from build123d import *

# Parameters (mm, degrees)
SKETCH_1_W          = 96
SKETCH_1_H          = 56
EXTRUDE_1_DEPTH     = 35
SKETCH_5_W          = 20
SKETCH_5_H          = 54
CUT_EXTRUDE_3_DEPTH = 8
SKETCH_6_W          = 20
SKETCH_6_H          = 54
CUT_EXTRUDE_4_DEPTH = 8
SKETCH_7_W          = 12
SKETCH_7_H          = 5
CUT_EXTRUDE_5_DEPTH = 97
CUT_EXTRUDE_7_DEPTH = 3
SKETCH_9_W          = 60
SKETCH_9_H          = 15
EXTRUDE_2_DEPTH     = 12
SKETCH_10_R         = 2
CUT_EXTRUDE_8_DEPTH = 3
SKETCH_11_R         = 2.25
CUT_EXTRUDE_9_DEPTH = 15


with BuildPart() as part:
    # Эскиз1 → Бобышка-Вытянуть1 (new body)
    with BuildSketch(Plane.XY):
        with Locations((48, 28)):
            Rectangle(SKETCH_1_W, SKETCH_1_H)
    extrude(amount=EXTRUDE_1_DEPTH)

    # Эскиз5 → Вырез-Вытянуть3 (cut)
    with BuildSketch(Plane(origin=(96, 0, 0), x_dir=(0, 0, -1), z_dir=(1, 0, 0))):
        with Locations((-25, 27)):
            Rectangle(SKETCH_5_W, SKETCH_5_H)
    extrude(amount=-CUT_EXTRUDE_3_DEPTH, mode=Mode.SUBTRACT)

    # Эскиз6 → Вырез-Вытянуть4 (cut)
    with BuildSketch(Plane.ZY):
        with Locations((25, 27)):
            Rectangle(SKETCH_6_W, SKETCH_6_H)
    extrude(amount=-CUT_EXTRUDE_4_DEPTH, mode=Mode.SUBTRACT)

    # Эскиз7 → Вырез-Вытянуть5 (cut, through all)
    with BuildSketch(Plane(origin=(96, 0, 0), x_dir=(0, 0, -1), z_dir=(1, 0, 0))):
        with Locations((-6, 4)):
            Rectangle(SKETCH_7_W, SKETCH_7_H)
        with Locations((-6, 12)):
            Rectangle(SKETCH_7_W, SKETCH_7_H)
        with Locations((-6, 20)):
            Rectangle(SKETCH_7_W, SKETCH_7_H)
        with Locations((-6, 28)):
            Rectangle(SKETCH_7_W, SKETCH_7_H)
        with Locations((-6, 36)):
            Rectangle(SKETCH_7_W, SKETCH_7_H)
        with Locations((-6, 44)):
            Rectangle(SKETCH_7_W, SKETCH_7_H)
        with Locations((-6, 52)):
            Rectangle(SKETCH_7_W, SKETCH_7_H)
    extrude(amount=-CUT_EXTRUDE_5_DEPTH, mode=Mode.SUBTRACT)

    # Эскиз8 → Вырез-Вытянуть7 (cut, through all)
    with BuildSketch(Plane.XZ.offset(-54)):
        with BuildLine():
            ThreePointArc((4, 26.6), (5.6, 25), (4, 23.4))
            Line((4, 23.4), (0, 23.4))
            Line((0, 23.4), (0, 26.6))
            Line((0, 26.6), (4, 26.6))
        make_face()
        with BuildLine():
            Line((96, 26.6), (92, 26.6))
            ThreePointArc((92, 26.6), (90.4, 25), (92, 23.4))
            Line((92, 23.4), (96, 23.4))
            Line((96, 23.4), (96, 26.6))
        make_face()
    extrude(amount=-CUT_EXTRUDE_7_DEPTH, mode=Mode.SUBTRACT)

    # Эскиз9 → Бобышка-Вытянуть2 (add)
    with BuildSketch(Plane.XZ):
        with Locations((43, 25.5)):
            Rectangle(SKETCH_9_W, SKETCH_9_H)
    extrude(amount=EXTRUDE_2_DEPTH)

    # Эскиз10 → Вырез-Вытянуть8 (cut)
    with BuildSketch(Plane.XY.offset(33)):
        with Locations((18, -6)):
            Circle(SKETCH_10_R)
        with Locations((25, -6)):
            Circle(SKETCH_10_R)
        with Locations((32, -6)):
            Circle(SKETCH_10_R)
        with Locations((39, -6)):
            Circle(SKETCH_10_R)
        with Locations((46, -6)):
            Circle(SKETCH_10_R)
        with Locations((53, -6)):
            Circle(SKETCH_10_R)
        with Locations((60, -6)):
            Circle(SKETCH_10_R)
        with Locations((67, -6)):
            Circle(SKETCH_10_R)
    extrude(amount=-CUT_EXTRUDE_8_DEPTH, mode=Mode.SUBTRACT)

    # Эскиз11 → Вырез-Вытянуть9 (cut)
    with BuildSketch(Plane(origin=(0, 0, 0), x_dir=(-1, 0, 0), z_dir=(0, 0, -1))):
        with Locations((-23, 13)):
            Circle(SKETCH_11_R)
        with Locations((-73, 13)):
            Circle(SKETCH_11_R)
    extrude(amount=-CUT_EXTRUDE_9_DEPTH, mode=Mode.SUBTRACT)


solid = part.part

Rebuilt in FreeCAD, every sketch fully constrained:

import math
import FreeCAD as App
import Part
import Sketcher

V = App.Vector
Q = App.Units.Quantity


def add_polygon(sketch, points):
    """Adds a closed chain of lines whose ends are joined by coincident constraints."""
    first, n = sketch.GeometryCount, len(points)
    for a, b in zip(points, points[1:] + points[:1]):
        sketch.addGeometry(Part.LineSegment(App.Vector(*a, 0), App.Vector(*b, 0)), False)
    for i in range(n):
        sketch.addConstraint(Sketcher.Constraint("Coincident", first + i, 2, first + (i + 1) % n, 1))

doc = App.newDocument("Part")
body = doc.addObject("PartDesign::Body", "Body")

sketch1 = body.newObject("Sketcher::SketchObject", "Sketch")
sketch1.AttachmentSupport = (doc.getObject("XY_Plane"), [""])
sketch1.MapMode = "FlatFace"
add_polygon(sketch1, [(0, 56), (0, 0), (96, 0), (96, 56)])
sketch1.addConstraint([
    Sketcher.Constraint("Vertical", 0),
    Sketcher.Constraint("Horizontal", 1),
    Sketcher.Constraint("Vertical", 2),
    Sketcher.Constraint("Horizontal", 3),
    Sketcher.Constraint("Coincident", 0, 2, -1, 1),
    Sketcher.Constraint("DistanceX", 1, 1, 1, 2, Q("96 mm")),
    Sketcher.Constraint("DistanceY", 0, 2, 0, 1, Q("56 mm")),
])
pad1 = body.newObject("PartDesign::Pad", "Pad")
pad1.Profile = sketch1
pad1.Length = 35

sketch2 = body.newObject("Sketcher::SketchObject", "Sketch001")
sketch2.AttachmentSupport = (doc.getObject("YZ_Plane"), [""])
sketch2.MapMode = "FlatFace"
sketch2.AttachmentOffset = App.Placement(V(0, 0, 96), App.Rotation())
add_polygon(sketch2, [(54, 35), (0, 35), (0, 15), (54, 15)])
sketch2.addConstraint([
    Sketcher.Constraint("Horizontal", 0),
    Sketcher.Constraint("Vertical", 1),
    Sketcher.Constraint("Horizontal", 2),
    Sketcher.Constraint("Vertical", 3),
    Sketcher.Constraint("PointOnObject", 0, 2, -2),
    Sketcher.Constraint("DistanceX", 0, 2, 0, 1, Q("54 mm")),
    Sketcher.Constraint("DistanceY", 1, 2, 1, 1, Q("20 mm")),
    Sketcher.Constraint("DistanceY", -1, 1, 0, 2, Q("35 mm")),
])
pocket1 = body.newObject("PartDesign::Pocket", "Pocket")
pocket1.Profile = sketch2
pocket1.Length = 8

sketch3 = body.newObject("Sketcher::SketchObject", "Sketch002")
sketch3.AttachmentSupport = (doc.getObject("YZ_Plane"), [""])
sketch3.MapMode = "FlatFace"
add_polygon(sketch3, [(54, 15), (0, 15), (0, 35), (54, 35)])
sketch3.addConstraint([
    Sketcher.Constraint("Horizontal", 0),
    Sketcher.Constraint("Vertical", 1),
    Sketcher.Constraint("Horizontal", 2),
    Sketcher.Constraint("Vertical", 3),
    Sketcher.Constraint("PointOnObject", 0, 2, -2),
    Sketcher.Constraint("DistanceX", 0, 2, 0, 1, Q("54 mm")),
    Sketcher.Constraint("DistanceY", 1, 1, 1, 2, Q("20 mm")),
    Sketcher.Constraint("DistanceY", -1, 1, 0, 2, Q("15 mm")),
])
pocket2 = body.newObject("PartDesign::Pocket", "Pocket001")
pocket2.Profile = sketch3
pocket2.Length = 8
pocket2.Reversed = True

sketch4 = body.newObject("Sketcher::SketchObject", "Sketch003")
sketch4.AttachmentSupport = (doc.getObject("YZ_Plane"), [""])
sketch4.MapMode = "FlatFace"
sketch4.AttachmentOffset = App.Placement(V(0, 0, 96), App.Rotation())
add_polygon(sketch4, [(6, 12), (2, 12), (2, 0), (6, 0)])
add_polygon(sketch4, [(14, 12), (10, 12), (10, 0), (14, 0)])
add_polygon(sketch4, [(22, 12), (18, 12), (18, 0), (22, 0)])
add_polygon(sketch4, [(30, 12), (26, 12), (26, 0), (30, 0)])
add_polygon(sketch4, [(38, 12), (34, 12), (34, 0), (38, 0)])
add_polygon(sketch4, [(46, 12), (42, 12), (42, 0), (46, 0)])
add_polygon(sketch4, [(54, 12), (50, 12), (50, 0), (54, 0)])
sketch4.addConstraint([
    Sketcher.Constraint("Horizontal", 0),
    Sketcher.Constraint("Vertical", 1),
    Sketcher.Constraint("Horizontal", 2),
    Sketcher.Constraint("Vertical", 3),
    Sketcher.Constraint("Horizontal", 4),
    Sketcher.Constraint("Vertical", 5),
    Sketcher.Constraint("Horizontal", 6),
    Sketcher.Constraint("Vertical", 7),
    Sketcher.Constraint("Horizontal", 8),
    Sketcher.Constraint("Vertical", 9),
    Sketcher.Constraint("Horizontal", 10),
    Sketcher.Constraint("Vertical", 11),
    Sketcher.Constraint("Horizontal", 12),
    Sketcher.Constraint("Vertical", 13),
    Sketcher.Constraint("Horizontal", 14),
    Sketcher.Constraint("Vertical", 15),
    Sketcher.Constraint("Horizontal", 16),
    Sketcher.Constraint("Vertical", 17),
    Sketcher.Constraint("Horizontal", 18),
    Sketcher.Constraint("Vertical", 19),
    Sketcher.Constraint("Horizontal", 20),
    Sketcher.Constraint("Vertical", 21),
    Sketcher.Constraint("Horizontal", 22),
    Sketcher.Constraint("Vertical", 23),
    Sketcher.Constraint("Horizontal", 24),
    Sketcher.Constraint("Vertical", 25),
    Sketcher.Constraint("Horizontal", 26),
    Sketcher.Constraint("Vertical", 27),
    Sketcher.Constraint("PointOnObject", 1, 2, -1),
    Sketcher.Constraint("PointOnObject", 5, 2, -1),
    Sketcher.Constraint("PointOnObject", 9, 2, -1),
    Sketcher.Constraint("PointOnObject", 13, 2, -1),
    Sketcher.Constraint("PointOnObject", 17, 2, -1),
    Sketcher.Constraint("PointOnObject", 21, 2, -1),
    Sketcher.Constraint("PointOnObject", 25, 2, -1),
    Sketcher.Constraint("Horizontal", 3, 2, 4, 2),
    Sketcher.Constraint("Horizontal", 7, 2, 8, 2),
    Sketcher.Constraint("Horizontal", 11, 2, 12, 2),
    Sketcher.Constraint("Horizontal", 15, 2, 16, 2),
    Sketcher.Constraint("Horizontal", 19, 2, 20, 2),
    Sketcher.Constraint("Horizontal", 23, 2, 24, 2),
    Sketcher.Constraint("Equal", 2, 4),
    Sketcher.Constraint("Equal", 6, 8),
    Sketcher.Constraint("Equal", 10, 12),
    Sketcher.Constraint("Equal", 14, 16),
    Sketcher.Constraint("Equal", 18, 20),
    Sketcher.Constraint("Equal", 22, 24),
    Sketcher.Constraint("DistanceX", 0, 2, 0, 1, Q("5 mm")),
    Sketcher.Constraint("DistanceY", 1, 2, 1, 1, Q("12 mm")),
    Sketcher.Constraint("DistanceX", 3, 2, 4, 2, Q("3 mm")),
    Sketcher.Constraint("DistanceX", 7, 2, 8, 2, Q("3 mm")),
    Sketcher.Constraint("DistanceX", 11, 2, 12, 2, Q("3 mm")),
    Sketcher.Constraint("DistanceX", 15, 2, 16, 2, Q("3 mm")),
    Sketcher.Constraint("DistanceX", 19, 2, 20, 2, Q("3 mm")),
    Sketcher.Constraint("DistanceX", 23, 2, 24, 2, Q("3 mm")),
    Sketcher.Constraint("DistanceX", -1, 1, 0, 2, Q("1.5 mm")),
])
pocket3 = body.newObject("PartDesign::Pocket", "Pocket002")
pocket3.Profile = sketch4
pocket3.Type = "ThroughAll"

sketch5 = body.newObject("Sketcher::SketchObject", "Sketch004")
sketch5.AttachmentSupport = (doc.getObject("XZ_Plane"), [""])
sketch5.MapMode = "FlatFace"
sketch5.AttachmentOffset = App.Placement(V(0, 0, -54), App.Rotation())
sketch5.addGeometry([
    Part.ArcOfCircle(Part.Circle(V(4, 25, 0), V(0, 0, 1), 1.6), math.radians(-90), math.radians(90)),
    Part.LineSegment(V(4, 26.6, 0), V(0, 26.6, 0)),
    Part.LineSegment(V(0, 26.6, 0), V(0, 23.4, 0)),
    Part.LineSegment(V(0, 23.4, 0), V(4, 23.4, 0)),
    Part.LineSegment(V(96, 26.6, 0), V(92, 26.6, 0)),
    Part.ArcOfCircle(Part.Circle(V(92, 25, 0), V(0, 0, 1), 1.6), math.radians(90), math.radians(270)),
    Part.LineSegment(V(92, 23.4, 0), V(96, 23.4, 0)),
    Part.LineSegment(V(96, 23.4, 0), V(96, 26.6, 0)),
], False)
sketch5.addConstraint([
    Sketcher.Constraint("Tangent", 0, 2, 1, 1),
    Sketcher.Constraint("Coincident", 1, 2, 2, 1),
    Sketcher.Constraint("Coincident", 2, 2, 3, 1),
    Sketcher.Constraint("Tangent", 3, 2, 0, 1),
    Sketcher.Constraint("Tangent", 4, 2, 5, 1),
    Sketcher.Constraint("Tangent", 5, 2, 6, 1),
    Sketcher.Constraint("Coincident", 6, 2, 7, 1),
    Sketcher.Constraint("Coincident", 7, 2, 4, 1),
    Sketcher.Constraint("Horizontal", 1),
    Sketcher.Constraint("Vertical", 2),
    Sketcher.Constraint("Horizontal", 3),
    Sketcher.Constraint("Horizontal", 4),
    Sketcher.Constraint("Horizontal", 6),
    Sketcher.Constraint("Vertical", 7),
    Sketcher.Constraint("Equal", 0, 5),
    Sketcher.Constraint("PointOnObject", 1, 2, -2),
    Sketcher.Constraint("Horizontal", 0, 3, 5, 3),
    Sketcher.Constraint("Equal", 3, 4),
    Sketcher.Constraint("Radius", 0, Q("1.6 mm")),
    Sketcher.Constraint("DistanceX", 1, 2, 1, 1, Q("4 mm")),
    Sketcher.Constraint("DistanceY", -1, 1, 0, 3, Q("25 mm")),
    Sketcher.Constraint("DistanceX", -1, 1, 5, 3, Q("92 mm")),
])
pocket4 = body.newObject("PartDesign::Pocket", "Pocket003")
pocket4.Profile = sketch5
pocket4.Type = "ThroughAll"

sketch6 = body.newObject("Sketcher::SketchObject", "Sketch005")
sketch6.AttachmentSupport = (doc.getObject("XZ_Plane"), [""])
sketch6.MapMode = "FlatFace"
add_polygon(sketch6, [(13, 33), (13, 18), (73, 18), (73, 33)])
sketch6.addConstraint([
    Sketcher.Constraint("Vertical", 0),
    Sketcher.Constraint("Horizontal", 1),
    Sketcher.Constraint("Vertical", 2),
    Sketcher.Constraint("Horizontal", 3),
    Sketcher.Constraint("DistanceX", 1, 1, 1, 2, Q("60 mm")),
    Sketcher.Constraint("DistanceY", 0, 2, 0, 1, Q("15 mm")),
    Sketcher.Constraint("DistanceX", -1, 1, 0, 2, Q("13 mm")),
    Sketcher.Constraint("DistanceY", -1, 1, 0, 2, Q("18 mm")),
])
pad2 = body.newObject("PartDesign::Pad", "Pad001")
pad2.Profile = sketch6
pad2.Length = 12

sketch7 = body.newObject("Sketcher::SketchObject", "Sketch006")
sketch7.AttachmentSupport = (doc.getObject("XY_Plane"), [""])
sketch7.MapMode = "FlatFace"
sketch7.AttachmentOffset = App.Placement(V(0, 0, 33), App.Rotation())
sketch7.addGeometry([
    Part.Circle(V(18, -6, 0), V(0, 0, 1), 2),
    Part.Circle(V(25, -6, 0), V(0, 0, 1), 2),
    Part.Circle(V(32, -6, 0), V(0, 0, 1), 2),
    Part.Circle(V(39, -6, 0), V(0, 0, 1), 2),
    Part.Circle(V(46, -6, 0), V(0, 0, 1), 2),
    Part.Circle(V(53, -6, 0), V(0, 0, 1), 2),
    Part.Circle(V(60, -6, 0), V(0, 0, 1), 2),
    Part.Circle(V(67, -6, 0), V(0, 0, 1), 2),
], False)
sketch7.addConstraint([
    Sketcher.Constraint("Equal", 0, 1),
    Sketcher.Constraint("Equal", 1, 2),
    Sketcher.Constraint("Equal", 2, 3),
    Sketcher.Constraint("Equal", 3, 4),
    Sketcher.Constraint("Equal", 4, 5),
    Sketcher.Constraint("Equal", 5, 6),
    Sketcher.Constraint("Equal", 6, 7),
    Sketcher.Constraint("Horizontal", 0, 3, 1, 3),
    Sketcher.Constraint("Horizontal", 1, 3, 2, 3),
    Sketcher.Constraint("Horizontal", 2, 3, 3, 3),
    Sketcher.Constraint("Horizontal", 3, 3, 4, 3),
    Sketcher.Constraint("Horizontal", 4, 3, 5, 3),
    Sketcher.Constraint("Horizontal", 5, 3, 6, 3),
    Sketcher.Constraint("Horizontal", 6, 3, 7, 3),
    Sketcher.Constraint("Diameter", 0, Q("4 mm")),
    Sketcher.Constraint("DistanceX", -1, 1, 0, 3, Q("18 mm")),
    Sketcher.Constraint("DistanceY", 0, 3, -1, 1, Q("6 mm")),
    Sketcher.Constraint("DistanceX", -1, 1, 1, 3, Q("25 mm")),
    Sketcher.Constraint("DistanceX", -1, 1, 2, 3, Q("32 mm")),
    Sketcher.Constraint("DistanceX", -1, 1, 3, 3, Q("39 mm")),
    Sketcher.Constraint("DistanceX", -1, 1, 4, 3, Q("46 mm")),
    Sketcher.Constraint("DistanceX", -1, 1, 5, 3, Q("53 mm")),
    Sketcher.Constraint("DistanceX", -1, 1, 6, 3, Q("60 mm")),
    Sketcher.Constraint("DistanceX", -1, 1, 7, 3, Q("67 mm")),
])
pocket5 = body.newObject("PartDesign::Pocket", "Pocket004")
pocket5.Profile = sketch7
pocket5.Length = 3

sketch8 = body.newObject("Sketcher::SketchObject", "Sketch007")
sketch8.AttachmentSupport = (doc.getObject("XY_Plane"), [""])
sketch8.MapMode = "FlatFace"
sketch8.addGeometry([
    Part.Circle(V(23, 13, 0), V(0, 0, 1), 2.2),
    Part.Circle(V(73, 13, 0), V(0, 0, 1), 2.2),
], False)
sketch8.addConstraint([
    Sketcher.Constraint("Equal", 0, 1),
    Sketcher.Constraint("Horizontal", 0, 3, 1, 3),
    Sketcher.Constraint("Diameter", 0, Q("4.5 mm")),
    Sketcher.Constraint("DistanceX", -1, 1, 0, 3, Q("23 mm")),
    Sketcher.Constraint("DistanceY", -1, 1, 0, 3, Q("13 mm")),
    Sketcher.Constraint("DistanceX", -1, 1, 1, 3, Q("73 mm")),
])
pocket6 = body.newObject("PartDesign::Pocket", "Pocket005")
pocket6.Profile = sketch8
pocket6.Length = 15
pocket6.Reversed = True

doc.recompute()
